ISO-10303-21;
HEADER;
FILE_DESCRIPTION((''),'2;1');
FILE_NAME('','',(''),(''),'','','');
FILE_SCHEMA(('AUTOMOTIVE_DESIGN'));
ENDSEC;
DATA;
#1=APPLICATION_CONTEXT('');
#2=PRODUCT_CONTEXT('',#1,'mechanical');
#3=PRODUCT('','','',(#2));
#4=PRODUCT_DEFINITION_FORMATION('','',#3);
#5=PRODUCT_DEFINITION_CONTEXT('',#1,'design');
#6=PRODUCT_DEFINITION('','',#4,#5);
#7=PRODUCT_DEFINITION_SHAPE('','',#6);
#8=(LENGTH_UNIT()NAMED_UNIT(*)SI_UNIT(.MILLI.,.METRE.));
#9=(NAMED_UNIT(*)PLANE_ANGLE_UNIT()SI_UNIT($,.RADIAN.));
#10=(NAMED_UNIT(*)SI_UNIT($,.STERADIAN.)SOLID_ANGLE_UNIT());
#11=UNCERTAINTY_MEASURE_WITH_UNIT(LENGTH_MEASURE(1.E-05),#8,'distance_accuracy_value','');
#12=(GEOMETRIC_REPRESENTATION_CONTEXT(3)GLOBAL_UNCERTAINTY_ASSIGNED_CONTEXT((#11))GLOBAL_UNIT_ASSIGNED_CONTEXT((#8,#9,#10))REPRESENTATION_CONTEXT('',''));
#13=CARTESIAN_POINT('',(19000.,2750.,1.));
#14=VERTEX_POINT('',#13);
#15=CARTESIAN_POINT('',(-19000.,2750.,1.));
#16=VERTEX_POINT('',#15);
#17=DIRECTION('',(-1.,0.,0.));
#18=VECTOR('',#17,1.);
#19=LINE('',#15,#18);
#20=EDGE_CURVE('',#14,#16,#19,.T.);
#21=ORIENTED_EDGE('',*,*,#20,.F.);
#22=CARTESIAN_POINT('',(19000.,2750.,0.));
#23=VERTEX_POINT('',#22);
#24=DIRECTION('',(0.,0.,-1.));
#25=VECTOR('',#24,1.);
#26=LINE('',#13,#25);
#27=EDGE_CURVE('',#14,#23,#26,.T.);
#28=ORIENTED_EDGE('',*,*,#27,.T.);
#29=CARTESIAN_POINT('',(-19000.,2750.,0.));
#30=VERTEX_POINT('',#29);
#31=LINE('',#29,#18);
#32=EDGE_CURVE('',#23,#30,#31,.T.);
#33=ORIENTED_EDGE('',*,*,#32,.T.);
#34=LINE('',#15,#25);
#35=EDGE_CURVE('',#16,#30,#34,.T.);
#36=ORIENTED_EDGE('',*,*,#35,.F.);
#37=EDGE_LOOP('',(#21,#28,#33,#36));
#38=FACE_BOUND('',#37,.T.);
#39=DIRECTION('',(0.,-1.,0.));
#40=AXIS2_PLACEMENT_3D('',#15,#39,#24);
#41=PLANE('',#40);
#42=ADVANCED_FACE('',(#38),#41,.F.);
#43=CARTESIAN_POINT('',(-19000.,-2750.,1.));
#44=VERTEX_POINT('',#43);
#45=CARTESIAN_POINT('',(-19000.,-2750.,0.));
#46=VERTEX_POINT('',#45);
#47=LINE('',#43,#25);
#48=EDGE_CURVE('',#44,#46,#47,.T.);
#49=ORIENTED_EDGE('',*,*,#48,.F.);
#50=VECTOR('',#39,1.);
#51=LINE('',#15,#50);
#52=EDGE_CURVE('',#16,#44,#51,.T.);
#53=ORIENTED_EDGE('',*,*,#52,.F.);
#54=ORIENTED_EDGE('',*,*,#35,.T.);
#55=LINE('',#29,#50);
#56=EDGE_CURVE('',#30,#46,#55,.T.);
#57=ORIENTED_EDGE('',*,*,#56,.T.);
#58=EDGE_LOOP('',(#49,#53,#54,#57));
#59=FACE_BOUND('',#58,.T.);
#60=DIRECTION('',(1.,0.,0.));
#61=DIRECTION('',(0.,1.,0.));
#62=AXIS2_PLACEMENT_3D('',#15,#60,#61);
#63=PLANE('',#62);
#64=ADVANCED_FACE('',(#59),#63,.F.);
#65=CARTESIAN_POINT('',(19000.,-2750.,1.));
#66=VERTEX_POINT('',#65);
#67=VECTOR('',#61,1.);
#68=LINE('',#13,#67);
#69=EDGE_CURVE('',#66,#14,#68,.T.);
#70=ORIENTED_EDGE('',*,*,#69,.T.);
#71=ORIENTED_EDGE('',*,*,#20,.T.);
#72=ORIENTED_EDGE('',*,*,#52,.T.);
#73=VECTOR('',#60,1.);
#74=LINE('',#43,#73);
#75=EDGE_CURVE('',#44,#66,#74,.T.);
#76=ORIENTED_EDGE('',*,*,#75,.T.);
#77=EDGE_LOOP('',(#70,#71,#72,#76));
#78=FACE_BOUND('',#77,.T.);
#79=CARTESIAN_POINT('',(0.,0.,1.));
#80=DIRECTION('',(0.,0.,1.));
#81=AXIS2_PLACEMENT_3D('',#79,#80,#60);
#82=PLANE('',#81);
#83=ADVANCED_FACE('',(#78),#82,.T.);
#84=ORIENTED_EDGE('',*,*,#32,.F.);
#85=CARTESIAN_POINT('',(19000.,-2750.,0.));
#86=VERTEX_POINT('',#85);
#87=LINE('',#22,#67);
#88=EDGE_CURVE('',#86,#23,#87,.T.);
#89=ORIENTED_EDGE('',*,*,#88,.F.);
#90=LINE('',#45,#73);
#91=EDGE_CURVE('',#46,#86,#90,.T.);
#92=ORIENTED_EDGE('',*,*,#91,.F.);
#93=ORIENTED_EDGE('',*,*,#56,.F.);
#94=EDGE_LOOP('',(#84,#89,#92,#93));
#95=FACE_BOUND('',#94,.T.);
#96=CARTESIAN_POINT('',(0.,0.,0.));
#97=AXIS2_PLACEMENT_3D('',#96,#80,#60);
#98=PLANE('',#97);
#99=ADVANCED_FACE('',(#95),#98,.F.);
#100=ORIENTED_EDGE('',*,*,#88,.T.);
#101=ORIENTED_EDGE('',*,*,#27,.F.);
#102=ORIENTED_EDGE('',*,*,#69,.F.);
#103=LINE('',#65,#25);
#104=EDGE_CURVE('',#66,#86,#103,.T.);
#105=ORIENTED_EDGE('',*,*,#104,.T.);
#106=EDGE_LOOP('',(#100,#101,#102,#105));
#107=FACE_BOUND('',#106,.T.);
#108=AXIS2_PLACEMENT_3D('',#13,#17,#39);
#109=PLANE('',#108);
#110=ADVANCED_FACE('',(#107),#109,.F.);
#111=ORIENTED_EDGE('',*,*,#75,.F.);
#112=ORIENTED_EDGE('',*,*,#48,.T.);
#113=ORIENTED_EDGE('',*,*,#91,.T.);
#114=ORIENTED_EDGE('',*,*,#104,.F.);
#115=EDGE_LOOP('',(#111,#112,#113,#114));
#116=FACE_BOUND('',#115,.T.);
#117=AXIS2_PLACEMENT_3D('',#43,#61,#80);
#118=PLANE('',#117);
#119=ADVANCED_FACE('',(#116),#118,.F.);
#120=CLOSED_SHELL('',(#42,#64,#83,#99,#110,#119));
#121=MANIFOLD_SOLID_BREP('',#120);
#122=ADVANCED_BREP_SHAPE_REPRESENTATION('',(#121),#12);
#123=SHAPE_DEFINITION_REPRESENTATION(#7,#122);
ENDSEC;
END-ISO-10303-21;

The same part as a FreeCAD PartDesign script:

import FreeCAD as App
import Part
import Sketcher

V = App.Vector

doc = App.newDocument("Part")
body = doc.addObject("PartDesign::Body", "Body")

# Sketch on XY plane
sketch1 = body.newObject("Sketcher::SketchObject", "Sketch")
sketch1.AttachmentSupport = (doc.getObject("XY_Plane"), [""])
sketch1.MapMode = "FlatFace"
sketch1.addGeometry([
    Part.LineSegment(V(-19000, 2750, 0), V(-19000, -2750, 0)),
    Part.LineSegment(V(-19000, -2750, 0), V(19000, -2750, 0)),
    Part.LineSegment(V(19000, -2750, 0), V(19000, 2750, 0)),
    Part.LineSegment(V(19000, 2750, 0), V(-19000, 2750, 0)),
], False)
sketch1.addConstraint([
    Sketcher.Constraint("Coincident", 0, 2, 1, 1),
    Sketcher.Constraint("Coincident", 1, 2, 2, 1),
    Sketcher.Constraint("Coincident", 2, 2, 3, 1),
    Sketcher.Constraint("Coincident", 3, 2, 0, 1),
    Sketcher.Constraint("Vertical", 0),
    Sketcher.Constraint("Horizontal", 1),
    Sketcher.Constraint("Vertical", 2),
    Sketcher.Constraint("Horizontal", 3),
    Sketcher.Constraint("Symmetric", 0, 2, 2, 2, -1, 1),
    Sketcher.Constraint("DistanceX", 1, 1, 1, 2, 38000.0),
    Sketcher.Constraint("DistanceY", 0, 2, 0, 1, 5500.0),
])
pad1 = body.newObject("PartDesign::Pad", "Pad")
pad1.Profile = sketch1
pad1.Length = 1

doc.recompute()
